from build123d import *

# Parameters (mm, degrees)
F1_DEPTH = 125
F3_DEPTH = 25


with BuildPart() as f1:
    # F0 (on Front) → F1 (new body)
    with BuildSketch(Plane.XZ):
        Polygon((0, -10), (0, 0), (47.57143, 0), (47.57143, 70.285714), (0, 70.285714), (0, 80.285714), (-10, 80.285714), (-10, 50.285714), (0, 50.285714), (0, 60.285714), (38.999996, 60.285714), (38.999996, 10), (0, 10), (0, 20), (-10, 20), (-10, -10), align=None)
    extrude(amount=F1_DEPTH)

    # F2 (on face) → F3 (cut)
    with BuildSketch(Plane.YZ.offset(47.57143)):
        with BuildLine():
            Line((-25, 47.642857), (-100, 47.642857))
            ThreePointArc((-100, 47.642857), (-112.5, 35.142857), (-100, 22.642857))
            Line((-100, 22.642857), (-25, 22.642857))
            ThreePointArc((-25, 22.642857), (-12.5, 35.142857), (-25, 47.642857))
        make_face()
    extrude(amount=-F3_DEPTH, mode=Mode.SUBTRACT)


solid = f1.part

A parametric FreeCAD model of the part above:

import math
import FreeCAD as App
import Part
import Sketcher

doc = App.newDocument("Part")
body = doc.addObject("PartDesign::Body", "Body")

sketch1 = body.newObject("Sketcher::SketchObject", "Sketch")
sketch1.AttachmentSupport = (doc.getObject("XZ_Plane"), [""])
sketch1.MapMode = "FlatFace"
sketch1.addGeometry(Part.LineSegment(App.Vector(0, -10, 0), App.Vector(0, 0, 0)), False)
sketch1.addGeometry(Part.LineSegment(App.Vector(0, 0, 0), App.Vector(48, 0, 0)), False)
sketch1.addGeometry(Part.LineSegment(App.Vector(48, 0, 0), App.Vector(48, 70, 0)), False)
sketch1.addGeometry(Part.LineSegment(App.Vector(48, 70, 0), App.Vector(0, 70, 0)), False)
sketch1.addGeometry(Part.LineSegment(App.Vector(0, 70, 0), App.Vector(0, 80, 0)), False)
sketch1.addGeometry(Part.LineSegment(App.Vector(0, 80, 0), App.Vector(-10, 80, 0)), False)
sketch1.addGeometry(Part.LineSegment(App.Vector(-10, 80, 0), App.Vector(-10, 50, 0)), False)
sketch1.addGeometry(Part.LineSegment(App.Vector(-10, 50, 0), App.Vector(0, 50, 0)), False)
sketch1.addGeometry(Part.LineSegment(App.Vector(0, 50, 0), App.Vector(0, 60, 0)), False)
sketch1.addGeometry(Part.LineSegment(App.Vector(0, 60, 0), App.Vector(39, 60, 0)), False)
sketch1.addGeometry(Part.LineSegment(App.Vector(39, 60, 0), App.Vector(39, 10, 0)), False)
sketch1.addGeometry(Part.LineSegment(App.Vector(39, 10, 0), App.Vector(0, 10, 0)), False)
sketch1.addGeometry(Part.LineSegment(App.Vector(0, 10, 0), App.Vector(0, 20, 0)), False)
sketch1.addGeometry(Part.LineSegment(App.Vector(0, 20, 0), App.Vector(-10, 20, 0)), False)
sketch1.addGeometry(Part.LineSegment(App.Vector(-10, 20, 0), App.Vector(-10, -10, 0)), False)
sketch1.addGeometry(Part.LineSegment(App.Vector(-10, -10, 0), App.Vector(0, -10, 0)), False)
sketch1.addConstraint(Sketcher.Constraint("Coincident", 0, 2, 1, 1))
sketch1.addConstraint(Sketcher.Constraint("Coincident", 1, 2, 2, 1))
sketch1.addConstraint(Sketcher.Constraint("Coincident", 2, 2, 3, 1))
sketch1.addConstraint(Sketcher.Constraint("Coincident", 3, 2, 4, 1))
sketch1.addConstraint(Sketcher.Constraint("Coincident", 4, 2, 5, 1))
sketch1.addConstraint(Sketcher.Constraint("Coincident", 5, 2, 6, 1))
sketch1.addConstraint(Sketcher.Constraint("Coincident", 6, 2, 7, 1))
sketch1.addConstraint(Sketcher.Constraint("Coincident", 7, 2, 8, 1))
sketch1.addConstraint(Sketcher.Constraint("Coincident", 8, 2, 9, 1))
sketch1.addConstraint(Sketcher.Constraint("Coincident", 9, 2, 10, 1))
sketch1.addConstraint(Sketcher.Constraint("Coincident", 10, 2, 11, 1))
sketch1.addConstraint(Sketcher.Constraint("Coincident", 11, 2, 12, 1))
sketch1.addConstraint(Sketcher.Constraint("Coincident", 12, 2, 13, 1))
sketch1.addConstraint(Sketcher.Constraint("Coincident", 13, 2, 14, 1))
sketch1.addConstraint(Sketcher.Constraint("Coincident", 14, 2, 15, 1))
sketch1.addConstraint(Sketcher.Constraint("Coincident", 15, 2, 0, 1))
sketch1.addConstraint(Sketcher.Constraint("Vertical", 0))
sketch1.addConstraint(Sketcher.Constraint("Horizontal", 1))
sketch1.addConstraint(Sketcher.Constraint("Vertical", 2))
sketch1.addConstraint(Sketcher.Constraint("Horizontal", 3))
sketch1.addConstraint(Sketcher.Constraint("Vertical", 4))
sketch1.addConstraint(Sketcher.Constraint("Horizontal", 5))
sketch1.addConstraint(Sketcher.Constraint("Vertical", 6))
sketch1.addConstraint(Sketcher.Constraint("Horizontal", 7))
sketch1.addConstraint(Sketcher.Constraint("Vertical", 8))
sketch1.addConstraint(Sketcher.Constraint("Horizontal", 9))
sketch1.addConstraint(Sketcher.Constraint("Vertical", 10))
sketch1.addConstraint(Sketcher.Constraint("Horizontal", 11))
sketch1.addConstraint(Sketcher.Constraint("Vertical", 12))
sketch1.addConstraint(Sketcher.Constraint("Horizontal", 13))
sketch1.addConstraint(Sketcher.Constraint("Vertical", 14))
sketch1.addConstraint(Sketcher.Constraint("Horizontal", 15))
sketch1.addConstraint(Sketcher.Constraint("Coincident", 0, 2, -1, 1))
sketch1.addConstraint(Sketcher.Constraint("Symmetric", 11, 2, 15, 2, -1, 1))
sketch1.addConstraint(Sketcher.Constraint("PointOnObject", 3, 2, -2))
sketch1.addConstraint(Sketcher.Constraint("PointOnObject", 7, 2, -2))
sketch1.addConstraint(Sketcher.Constraint("Vertical", 6, 2, 13, 2))
sketch1.addConstraint(Sketcher.Constraint("Equal", 15, 0))
sketch1.addConstraint(Sketcher.Constraint("Equal", 0, 4))
sketch1.addConstraint(Sketcher.Constraint("Equal", 4, 8))
sketch1.addConstraint(Sketcher.Constraint("Equal", 8, 12))
sketch1.addConstraint(Sketcher.Constraint("Equal", 6, 14))
sketch1.addConstraint(Sketcher.Constraint("DistanceX", 5, 2, 5, 1, 10.0))
sketch1.addConstraint(Sketcher.Constraint("DistanceX", 1, 1, 1, 2, 47.57143))
sketch1.addConstraint(Sketcher.Constraint("DistanceX", 9, 1, 9, 2, 38.999996))
sketch1.addConstraint(Sketcher.Constraint("DistanceY", 2, 1, 2, 2, 70.285714))
pad1 = body.newObject("PartDesign::Pad", "Pad")
pad1.Profile = sketch1
pad1.Length = 125

sketch2 = body.newObject("Sketcher::SketchObject", "Sketch001")
sketch2.AttachmentSupport = (doc.getObject("YZ_Plane"), [""])
sketch2.MapMode = "FlatFace"
sketch2.AttachmentOffset = App.Placement(App.Vector(0, 0, 47.57143), App.Rotation())
sketch2.addGeometry(Part.LineSegment(App.Vector(-25, 48, 0), App.Vector(-100, 48, 0)), False)
sketch2.addGeometry(Part.ArcOfCircle(Part.Circle(App.Vector(-100, 35, 0), App.Vector(0, 0, 1), 12), math.radians(90), math.radians(270)), False)
sketch2.addGeometry(Part.LineSegment(App.Vector(-100, 23, 0), App.Vector(-25, 23, 0)), False)
sketch2.addGeometry(Part.ArcOfCircle(Part.Circle(App.Vector(-25, 35, 0), App.Vector(0, 0, 1), 12), math.radians(-90), math.radians(90)), False)
sketch2.addConstraint(Sketcher.Constraint("Tangent", 0, 2, 1, 1))
sketch2.addConstraint(Sketcher.Constraint("Tangent", 1, 2, 2, 1))
sketch2.addConstraint(Sketcher.Constraint("Tangent", 2, 2, 3, 1))
sketch2.addConstraint(Sketcher.Constraint("Tangent", 3, 2, 0, 1))
sketch2.addConstraint(Sketcher.Constraint("Horizontal", 0))
sketch2.addConstraint(Sketcher.Constraint("Horizontal", 2))
sketch2.addConstraint(Sketcher.Constraint("Radius", 1, 12.5))
sketch2.addConstraint(Sketcher.Constraint("DistanceX", 0, 2, 0, 1, 75.0))
sketch2.addConstraint(Sketcher.Constraint("DistanceX", 1, 3, -1, 1, 100.0))
sketch2.addConstraint(Sketcher.Constraint("DistanceY", -1, 1, 1, 3, 35.142857))
pocket1 = body.newObject("PartDesign::Pocket", "Pocket")
pocket1.Profile = sketch2
pocket1.Length = 25

doc.recompute()
